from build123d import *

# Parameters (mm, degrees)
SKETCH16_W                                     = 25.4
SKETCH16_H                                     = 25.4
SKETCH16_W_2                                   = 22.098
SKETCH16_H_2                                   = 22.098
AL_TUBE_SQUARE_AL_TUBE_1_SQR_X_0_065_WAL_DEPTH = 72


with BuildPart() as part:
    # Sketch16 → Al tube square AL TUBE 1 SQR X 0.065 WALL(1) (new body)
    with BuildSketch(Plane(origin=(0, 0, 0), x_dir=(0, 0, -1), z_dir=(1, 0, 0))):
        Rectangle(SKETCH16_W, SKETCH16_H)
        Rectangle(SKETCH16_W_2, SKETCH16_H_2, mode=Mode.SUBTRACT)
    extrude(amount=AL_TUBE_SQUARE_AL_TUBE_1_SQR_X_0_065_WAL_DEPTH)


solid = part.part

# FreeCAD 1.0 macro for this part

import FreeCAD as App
import Part
import Sketcher
Q = App.Units.Quantity


def add_polygon(sketch, points):
    """Adds a closed chain of lines whose ends are joined by coincident constraints."""
    first, n = sketch.GeometryCount, len(points)
    for a, b in zip(points, points[1:] + points[:1]):
        sketch.addGeometry(Part.LineSegment(App.Vector(*a, 0), App.Vector(*b, 0)), False)
    for i in range(n):
        sketch.addConstraint(Sketcher.Constraint("Coincident", first + i, 2, first + (i + 1) % n, 1))

doc = App.newDocument("Part")
body = doc.addObject("PartDesign::Body", "Body")

sketch1 = body.newObject("Sketcher::SketchObject", "Sketch")
sketch1.AttachmentSupport = (doc.getObject("YZ_Plane"), [""])
sketch1.MapMode = "FlatFace"
add_polygon(sketch1, [(13, 13), (-13, 13), (-13, -13), (13, -13)])
add_polygon(sketch1, [(-11, -11), (-11, 11), (11, 11), (11, -11)])
sketch1.addConstraint([
    Sketcher.Constraint("Horizontal", 0),
    Sketcher.Constraint("Vertical", 1),
    Sketcher.Constraint("Horizontal", 2),
    Sketcher.Constraint("Vertical", 3),
    Sketcher.Constraint("Vertical", 4),
    Sketcher.Constraint("Horizontal", 5),
    Sketcher.Constraint("Vertical", 6),
    Sketcher.Constraint("Horizontal", 7),
    Sketcher.Constraint("Symmetric", 0, 2, 2, 2, -1, 1),
    Sketcher.Constraint("Symmetric", 4, 2, 6, 2, -1, 1),
    Sketcher.Constraint("Equal", 2, 1),
    Sketcher.Constraint("Equal", 7, 4),
    Sketcher.Constraint("DistanceX", 0, 2, 0, 1, Q("1 in")),
    Sketcher.Constraint("DistanceX", 5, 1, 5, 2, Q("0.87 in")),
])
pad1 = body.newObject("PartDesign::Pad", "Pad")
pad1.Profile = sketch1
pad1.Length = 72

doc.recompute()
